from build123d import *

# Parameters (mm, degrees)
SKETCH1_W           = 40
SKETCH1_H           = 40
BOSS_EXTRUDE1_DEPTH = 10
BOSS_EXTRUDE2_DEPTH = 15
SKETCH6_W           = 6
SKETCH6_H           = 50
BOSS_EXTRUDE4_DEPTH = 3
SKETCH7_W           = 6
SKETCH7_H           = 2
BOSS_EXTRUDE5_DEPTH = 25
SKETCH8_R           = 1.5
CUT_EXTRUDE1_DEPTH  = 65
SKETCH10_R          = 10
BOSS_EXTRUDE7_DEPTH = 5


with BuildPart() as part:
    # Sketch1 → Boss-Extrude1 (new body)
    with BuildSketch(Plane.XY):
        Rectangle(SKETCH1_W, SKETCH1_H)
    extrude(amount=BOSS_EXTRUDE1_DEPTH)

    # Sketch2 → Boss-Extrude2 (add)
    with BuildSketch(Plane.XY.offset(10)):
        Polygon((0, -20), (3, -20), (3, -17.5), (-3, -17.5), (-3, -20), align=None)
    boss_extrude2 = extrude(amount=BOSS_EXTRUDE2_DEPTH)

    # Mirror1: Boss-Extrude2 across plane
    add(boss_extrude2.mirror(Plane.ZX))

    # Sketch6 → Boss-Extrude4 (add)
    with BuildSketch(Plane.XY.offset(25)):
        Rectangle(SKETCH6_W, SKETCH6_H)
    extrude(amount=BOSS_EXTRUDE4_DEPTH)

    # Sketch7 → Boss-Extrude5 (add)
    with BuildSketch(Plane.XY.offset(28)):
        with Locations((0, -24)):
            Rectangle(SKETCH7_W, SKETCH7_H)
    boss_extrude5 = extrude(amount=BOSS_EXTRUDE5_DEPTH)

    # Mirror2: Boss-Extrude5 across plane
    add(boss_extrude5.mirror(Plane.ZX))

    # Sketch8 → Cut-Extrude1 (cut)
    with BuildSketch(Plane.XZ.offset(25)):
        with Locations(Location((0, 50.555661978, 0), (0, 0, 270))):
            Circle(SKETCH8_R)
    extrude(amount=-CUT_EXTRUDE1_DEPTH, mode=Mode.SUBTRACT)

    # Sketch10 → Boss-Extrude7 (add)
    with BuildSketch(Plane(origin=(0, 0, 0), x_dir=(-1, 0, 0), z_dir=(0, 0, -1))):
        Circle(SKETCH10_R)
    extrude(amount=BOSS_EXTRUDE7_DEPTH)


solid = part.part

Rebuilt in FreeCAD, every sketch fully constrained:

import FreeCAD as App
import Part
import Sketcher

V = App.Vector

doc = App.newDocument("Part")
params = doc.addObject("Spreadsheet::Sheet", "Params")
for row, (alias, value) in enumerate([
    ("sketch1_width", "40 mm"),
    ("pad1_length", "10 mm"),
    ("sketch2_width", "6 mm"),
    ("sketch2_height", "2.5 mm"),
    ("pad2_length", "15 mm"),
    ("sketch3_width", "6 mm"),
    ("sketch3_height", "50 mm"),
    ("pad3_length", "3 mm"),
    ("sketch4_width", "6 mm"),
    ("sketch4_height", "2 mm"),
    ("pad4_length", "25 mm"),
    ("sketch5_diameter", "3 mm"),
    ("pocket1_length", "65 mm"),
    ("sketch6_diameter", "20 mm"),
    ("pad5_length", "5 mm"),
], start=1):
    params.set(f"A{row}", alias)
    params.set(f"B{row}", "=" + value)
    params.setAlias(f"B{row}", alias)

body = doc.addObject("PartDesign::Body", "Body")

# Sketch on XY plane
sketch1 = body.newObject("Sketcher::SketchObject", "Sketch")
sketch1.AttachmentSupport = (doc.getObject("XY_Plane"), [""])
sketch1.MapMode = "FlatFace"
sketch1.addGeometry(Part.LineSegment(V(-20, 20, 0), V(-20, -20, 0)), False)
sketch1.addGeometry(Part.LineSegment(V(-20, -20, 0), V(20, -20, 0)), False)
sketch1.addGeometry(Part.LineSegment(V(20, -20, 0), V(20, 20, 0)), False)
sketch1.addGeometry(Part.LineSegment(V(20, 20, 0), V(-20, 20, 0)), False)
sketch1.addConstraint(Sketcher.Constraint("Coincident", 0, 2, 1, 1))
sketch1.addConstraint(Sketcher.Constraint("Coincident", 1, 2, 2, 1))
sketch1.addConstraint(Sketcher.Constraint("Coincident", 2, 2, 3, 1))
sketch1.addConstraint(Sketcher.Constraint("Coincident", 3, 2, 0, 1))
sketch1.addConstraint(Sketcher.Constraint("Vertical", 0))
sketch1.addConstraint(Sketcher.Constraint("Horizontal", 1))
sketch1.addConstraint(Sketcher.Constraint("Vertical", 2))
sketch1.addConstraint(Sketcher.Constraint("Horizontal", 3))
sketch1.addConstraint(Sketcher.Constraint("Symmetric", 0, 2, 2, 2, -1, 1))
sketch1.addConstraint(Sketcher.Constraint("Equal", 3, 0))
sketch1.addConstraint(Sketcher.Constraint("DistanceX", 1, 1, 1, 2, 40.0))
sketch1.setExpression("Constraints[10]", "Params.sketch1_width")
pad1 = body.newObject("PartDesign::Pad", "Pad")
pad1.Profile = sketch1
pad1.setExpression("Length", "Params.pad1_length")

# Sketch on XY plane
sketch2 = body.newObject("Sketcher::SketchObject", "Sketch001")
sketch2.AttachmentSupport = (doc.getObject("XY_Plane"), [""])
sketch2.MapMode = "FlatFace"
sketch2.AttachmentOffset = App.Placement(V(0, 0, 10), App.Rotation())
sketch2.addGeometry(Part.LineSegment(V(3, -20, 0), V(3, -17.5, 0)), False)
sketch2.addGeometry(Part.LineSegment(V(3, -17.5, 0), V(-3, -17.5, 0)), False)
sketch2.addGeometry(Part.LineSegment(V(-3, -17.5, 0), V(-3, -20, 0)), False)
sketch2.addGeometry(Part.LineSegment(V(-3, -20, 0), V(3, -20, 0)), False)
sketch2.addConstraint(Sketcher.Constraint("Coincident", 0, 2, 1, 1))
sketch2.addConstraint(Sketcher.Constraint("Coincident", 1, 2, 2, 1))
sketch2.addConstraint(Sketcher.Constraint("Coincident", 2, 2, 3, 1))
sketch2.addConstraint(Sketcher.Constraint("Coincident", 3, 2, 0, 1))
sketch2.addConstraint(Sketcher.Constraint("Vertical", 0))
sketch2.addConstraint(Sketcher.Constraint("Horizontal", 1))
sketch2.addConstraint(Sketcher.Constraint("Vertical", 2))
sketch2.addConstraint(Sketcher.Constraint("Horizontal", 3))
sketch2.addConstraint(Sketcher.Constraint("DistanceX", 1, 2, 1, 1, 6.0))
sketch2.addConstraint(Sketcher.Constraint("DistanceY", 0, 1, 0, 2, 2.5))
sketch2.addConstraint(Sketcher.Constraint("DistanceX", -1, 1, 0, 2, 3.0))
sketch2.addConstraint(Sketcher.Constraint("DistanceY", 2, 2, -1, 1, 20.0))
sketch2.setExpression("Constraints[8]", "Params.sketch2_width")
sketch2.setExpression("Constraints[9]", "Params.sketch2_height")
pad2 = body.newObject("PartDesign::Pad", "Pad001")
pad2.Profile = sketch2
pad2.setExpression("Length", "Params.pad2_length")
doc.recompute()

mirrored = body.newObject("PartDesign::Mirrored", "Mirrored")
mirrored.Originals = [pad2]
mirrored.MirrorPlane = (doc.getObject("XZ_Plane"), [""])
body.Tip = mirrored

# Sketch on XY plane
sketch3 = body.newObject("Sketcher::SketchObject", "Sketch002")
sketch3.AttachmentSupport = (doc.getObject("XY_Plane"), [""])
sketch3.MapMode = "FlatFace"
sketch3.AttachmentOffset = App.Placement(V(0, 0, 25), App.Rotation())
sketch3.addGeometry(Part.LineSegment(V(-3, 25, 0), V(-3, -25, 0)), False)
sketch3.addGeometry(Part.LineSegment(V(-3, -25, 0), V(3, -25, 0)), False)
sketch3.addGeometry(Part.LineSegment(V(3, -25, 0), V(3, 25, 0)), False)
sketch3.addGeometry(Part.LineSegment(V(3, 25, 0), V(-3, 25, 0)), False)
sketch3.addConstraint(Sketcher.Constraint("Coincident", 0, 2, 1, 1))
sketch3.addConstraint(Sketcher.Constraint("Coincident", 1, 2, 2, 1))
sketch3.addConstraint(Sketcher.Constraint("Coincident", 2, 2, 3, 1))
sketch3.addConstraint(Sketcher.Constraint("Coincident", 3, 2, 0, 1))
sketch3.addConstraint(Sketcher.Constraint("Vertical", 0))
sketch3.addConstraint(Sketcher.Constraint("Horizontal", 1))
sketch3.addConstraint(Sketcher.Constraint("Vertical", 2))
sketch3.addConstraint(Sketcher.Constraint("Horizontal", 3))
sketch3.addConstraint(Sketcher.Constraint("Symmetric", 0, 2, 2, 2, -1, 1))
sketch3.addConstraint(Sketcher.Constraint("DistanceX", 1, 1, 1, 2, 6.0))
sketch3.addConstraint(Sketcher.Constraint("DistanceY", 0, 2, 0, 1, 50.0))
sketch3.setExpression("Constraints[9]", "Params.sketch3_width")
sketch3.setExpression("Constraints[10]", "Params.sketch3_height")
pad3 = body.newObject("PartDesign::Pad", "Pad002")
pad3.Profile = sketch3
pad3.setExpression("Length", "Params.pad3_length")

# Sketch on XY plane
sketch4 = body.newObject("Sketcher::SketchObject", "Sketch003")
sketch4.AttachmentSupport = (doc.getObject("XY_Plane"), [""])
sketch4.MapMode = "FlatFace"
sketch4.AttachmentOffset = App.Placement(V(0, 0, 28), App.Rotation())
sketch4.addGeometry(Part.LineSegment(V(-3, -23, 0), V(-3, -25, 0)), False)
sketch4.addGeometry(Part.LineSegment(V(-3, -25, 0), V(3, -25, 0)), False)
sketch4.addGeometry(Part.LineSegment(V(3, -25, 0), V(3, -23, 0)), False)
sketch4.addGeometry(Part.LineSegment(V(3, -23, 0), V(-3, -23, 0)), False)
sketch4.addConstraint(Sketcher.Constraint("Coincident", 0, 2, 1, 1))
sketch4.addConstraint(Sketcher.Constraint("Coincident", 1, 2, 2, 1))
sketch4.addConstraint(Sketcher.Constraint("Coincident", 2, 2, 3, 1))
sketch4.addConstraint(Sketcher.Constraint("Coincident", 3, 2, 0, 1))
sketch4.addConstraint(Sketcher.Constraint("Vertical", 0))
sketch4.addConstraint(Sketcher.Constraint("Horizontal", 1))
sketch4.addConstraint(Sketcher.Constraint("Vertical", 2))
sketch4.addConstraint(Sketcher.Constraint("Horizontal", 3))
sketch4.addConstraint(Sketcher.Constraint("DistanceX", 1, 1, 1, 2, 6.0))
sketch4.addConstraint(Sketcher.Constraint("DistanceY", 0, 2, 0, 1, 2.0))
sketch4.addConstraint(Sketcher.Constraint("DistanceX", 0, 2, -1, 1, 3.0))
sketch4.addConstraint(Sketcher.Constraint("DistanceY", 0, 2, -1, 1, 25.0))
sketch4.setExpression("Constraints[8]", "Params.sketch4_width")
sketch4.setExpression("Constraints[9]", "Params.sketch4_height")
pad4 = body.newObject("PartDesign::Pad", "Pad003")
pad4.Profile = sketch4
pad4.setExpression("Length", "Params.pad4_length")
doc.recompute()

mirrored2 = body.newObject("PartDesign::Mirrored", "Mirrored001")
mirrored2.Originals = [pad4]
mirrored2.MirrorPlane = (doc.getObject("XZ_Plane"), [""])
body.Tip = mirrored2

# Sketch on XZ plane
sketch5 = body.newObject("Sketcher::SketchObject", "Sketch004")
sketch5.AttachmentSupport = (doc.getObject("XZ_Plane"), [""])
sketch5.MapMode = "FlatFace"
sketch5.AttachmentOffset = App.Placement(V(0, 0, 25), App.Rotation())
sketch5.addGeometry(Part.Circle(V(0, 50.555662, 0), V(0, 0, 1), 1.5), False)
sketch5.addConstraint(Sketcher.Constraint("PointOnObject", 0, 3, -2))
sketch5.addConstraint(Sketcher.Constraint("Diameter", 0, 3.0))
sketch5.addConstraint(Sketcher.Constraint("DistanceY", -1, 1, 0, 3, 50.555662))
sketch5.setExpression("Constraints[1]", "Params.sketch5_diameter")
pocket1 = body.newObject("PartDesign::Pocket", "Pocket")
pocket1.Profile = sketch5
pocket1.setExpression("Length", "Params.pocket1_length")

# Sketch on XY plane
sketch6 = body.newObject("Sketcher::SketchObject", "Sketch005")
sketch6.AttachmentSupport = (doc.getObject("XY_Plane"), [""])
sketch6.MapMode = "FlatFace"
sketch6.addGeometry(Part.Circle(V(0, 0, 0), V(0, 0, 1), 10), False)
sketch6.addConstraint(Sketcher.Constraint("Coincident", 0, 3, -1, 1))
sketch6.addConstraint(Sketcher.Constraint("Diameter", 0, 20.0))
sketch6.setExpression("Constraints[1]", "Params.sketch6_diameter")
pad5 = body.newObject("PartDesign::Pad", "Pad004")
pad5.Profile = sketch6
pad5.setExpression("Length", "Params.pad5_length")
pad5.Reversed = True

doc.recompute()
